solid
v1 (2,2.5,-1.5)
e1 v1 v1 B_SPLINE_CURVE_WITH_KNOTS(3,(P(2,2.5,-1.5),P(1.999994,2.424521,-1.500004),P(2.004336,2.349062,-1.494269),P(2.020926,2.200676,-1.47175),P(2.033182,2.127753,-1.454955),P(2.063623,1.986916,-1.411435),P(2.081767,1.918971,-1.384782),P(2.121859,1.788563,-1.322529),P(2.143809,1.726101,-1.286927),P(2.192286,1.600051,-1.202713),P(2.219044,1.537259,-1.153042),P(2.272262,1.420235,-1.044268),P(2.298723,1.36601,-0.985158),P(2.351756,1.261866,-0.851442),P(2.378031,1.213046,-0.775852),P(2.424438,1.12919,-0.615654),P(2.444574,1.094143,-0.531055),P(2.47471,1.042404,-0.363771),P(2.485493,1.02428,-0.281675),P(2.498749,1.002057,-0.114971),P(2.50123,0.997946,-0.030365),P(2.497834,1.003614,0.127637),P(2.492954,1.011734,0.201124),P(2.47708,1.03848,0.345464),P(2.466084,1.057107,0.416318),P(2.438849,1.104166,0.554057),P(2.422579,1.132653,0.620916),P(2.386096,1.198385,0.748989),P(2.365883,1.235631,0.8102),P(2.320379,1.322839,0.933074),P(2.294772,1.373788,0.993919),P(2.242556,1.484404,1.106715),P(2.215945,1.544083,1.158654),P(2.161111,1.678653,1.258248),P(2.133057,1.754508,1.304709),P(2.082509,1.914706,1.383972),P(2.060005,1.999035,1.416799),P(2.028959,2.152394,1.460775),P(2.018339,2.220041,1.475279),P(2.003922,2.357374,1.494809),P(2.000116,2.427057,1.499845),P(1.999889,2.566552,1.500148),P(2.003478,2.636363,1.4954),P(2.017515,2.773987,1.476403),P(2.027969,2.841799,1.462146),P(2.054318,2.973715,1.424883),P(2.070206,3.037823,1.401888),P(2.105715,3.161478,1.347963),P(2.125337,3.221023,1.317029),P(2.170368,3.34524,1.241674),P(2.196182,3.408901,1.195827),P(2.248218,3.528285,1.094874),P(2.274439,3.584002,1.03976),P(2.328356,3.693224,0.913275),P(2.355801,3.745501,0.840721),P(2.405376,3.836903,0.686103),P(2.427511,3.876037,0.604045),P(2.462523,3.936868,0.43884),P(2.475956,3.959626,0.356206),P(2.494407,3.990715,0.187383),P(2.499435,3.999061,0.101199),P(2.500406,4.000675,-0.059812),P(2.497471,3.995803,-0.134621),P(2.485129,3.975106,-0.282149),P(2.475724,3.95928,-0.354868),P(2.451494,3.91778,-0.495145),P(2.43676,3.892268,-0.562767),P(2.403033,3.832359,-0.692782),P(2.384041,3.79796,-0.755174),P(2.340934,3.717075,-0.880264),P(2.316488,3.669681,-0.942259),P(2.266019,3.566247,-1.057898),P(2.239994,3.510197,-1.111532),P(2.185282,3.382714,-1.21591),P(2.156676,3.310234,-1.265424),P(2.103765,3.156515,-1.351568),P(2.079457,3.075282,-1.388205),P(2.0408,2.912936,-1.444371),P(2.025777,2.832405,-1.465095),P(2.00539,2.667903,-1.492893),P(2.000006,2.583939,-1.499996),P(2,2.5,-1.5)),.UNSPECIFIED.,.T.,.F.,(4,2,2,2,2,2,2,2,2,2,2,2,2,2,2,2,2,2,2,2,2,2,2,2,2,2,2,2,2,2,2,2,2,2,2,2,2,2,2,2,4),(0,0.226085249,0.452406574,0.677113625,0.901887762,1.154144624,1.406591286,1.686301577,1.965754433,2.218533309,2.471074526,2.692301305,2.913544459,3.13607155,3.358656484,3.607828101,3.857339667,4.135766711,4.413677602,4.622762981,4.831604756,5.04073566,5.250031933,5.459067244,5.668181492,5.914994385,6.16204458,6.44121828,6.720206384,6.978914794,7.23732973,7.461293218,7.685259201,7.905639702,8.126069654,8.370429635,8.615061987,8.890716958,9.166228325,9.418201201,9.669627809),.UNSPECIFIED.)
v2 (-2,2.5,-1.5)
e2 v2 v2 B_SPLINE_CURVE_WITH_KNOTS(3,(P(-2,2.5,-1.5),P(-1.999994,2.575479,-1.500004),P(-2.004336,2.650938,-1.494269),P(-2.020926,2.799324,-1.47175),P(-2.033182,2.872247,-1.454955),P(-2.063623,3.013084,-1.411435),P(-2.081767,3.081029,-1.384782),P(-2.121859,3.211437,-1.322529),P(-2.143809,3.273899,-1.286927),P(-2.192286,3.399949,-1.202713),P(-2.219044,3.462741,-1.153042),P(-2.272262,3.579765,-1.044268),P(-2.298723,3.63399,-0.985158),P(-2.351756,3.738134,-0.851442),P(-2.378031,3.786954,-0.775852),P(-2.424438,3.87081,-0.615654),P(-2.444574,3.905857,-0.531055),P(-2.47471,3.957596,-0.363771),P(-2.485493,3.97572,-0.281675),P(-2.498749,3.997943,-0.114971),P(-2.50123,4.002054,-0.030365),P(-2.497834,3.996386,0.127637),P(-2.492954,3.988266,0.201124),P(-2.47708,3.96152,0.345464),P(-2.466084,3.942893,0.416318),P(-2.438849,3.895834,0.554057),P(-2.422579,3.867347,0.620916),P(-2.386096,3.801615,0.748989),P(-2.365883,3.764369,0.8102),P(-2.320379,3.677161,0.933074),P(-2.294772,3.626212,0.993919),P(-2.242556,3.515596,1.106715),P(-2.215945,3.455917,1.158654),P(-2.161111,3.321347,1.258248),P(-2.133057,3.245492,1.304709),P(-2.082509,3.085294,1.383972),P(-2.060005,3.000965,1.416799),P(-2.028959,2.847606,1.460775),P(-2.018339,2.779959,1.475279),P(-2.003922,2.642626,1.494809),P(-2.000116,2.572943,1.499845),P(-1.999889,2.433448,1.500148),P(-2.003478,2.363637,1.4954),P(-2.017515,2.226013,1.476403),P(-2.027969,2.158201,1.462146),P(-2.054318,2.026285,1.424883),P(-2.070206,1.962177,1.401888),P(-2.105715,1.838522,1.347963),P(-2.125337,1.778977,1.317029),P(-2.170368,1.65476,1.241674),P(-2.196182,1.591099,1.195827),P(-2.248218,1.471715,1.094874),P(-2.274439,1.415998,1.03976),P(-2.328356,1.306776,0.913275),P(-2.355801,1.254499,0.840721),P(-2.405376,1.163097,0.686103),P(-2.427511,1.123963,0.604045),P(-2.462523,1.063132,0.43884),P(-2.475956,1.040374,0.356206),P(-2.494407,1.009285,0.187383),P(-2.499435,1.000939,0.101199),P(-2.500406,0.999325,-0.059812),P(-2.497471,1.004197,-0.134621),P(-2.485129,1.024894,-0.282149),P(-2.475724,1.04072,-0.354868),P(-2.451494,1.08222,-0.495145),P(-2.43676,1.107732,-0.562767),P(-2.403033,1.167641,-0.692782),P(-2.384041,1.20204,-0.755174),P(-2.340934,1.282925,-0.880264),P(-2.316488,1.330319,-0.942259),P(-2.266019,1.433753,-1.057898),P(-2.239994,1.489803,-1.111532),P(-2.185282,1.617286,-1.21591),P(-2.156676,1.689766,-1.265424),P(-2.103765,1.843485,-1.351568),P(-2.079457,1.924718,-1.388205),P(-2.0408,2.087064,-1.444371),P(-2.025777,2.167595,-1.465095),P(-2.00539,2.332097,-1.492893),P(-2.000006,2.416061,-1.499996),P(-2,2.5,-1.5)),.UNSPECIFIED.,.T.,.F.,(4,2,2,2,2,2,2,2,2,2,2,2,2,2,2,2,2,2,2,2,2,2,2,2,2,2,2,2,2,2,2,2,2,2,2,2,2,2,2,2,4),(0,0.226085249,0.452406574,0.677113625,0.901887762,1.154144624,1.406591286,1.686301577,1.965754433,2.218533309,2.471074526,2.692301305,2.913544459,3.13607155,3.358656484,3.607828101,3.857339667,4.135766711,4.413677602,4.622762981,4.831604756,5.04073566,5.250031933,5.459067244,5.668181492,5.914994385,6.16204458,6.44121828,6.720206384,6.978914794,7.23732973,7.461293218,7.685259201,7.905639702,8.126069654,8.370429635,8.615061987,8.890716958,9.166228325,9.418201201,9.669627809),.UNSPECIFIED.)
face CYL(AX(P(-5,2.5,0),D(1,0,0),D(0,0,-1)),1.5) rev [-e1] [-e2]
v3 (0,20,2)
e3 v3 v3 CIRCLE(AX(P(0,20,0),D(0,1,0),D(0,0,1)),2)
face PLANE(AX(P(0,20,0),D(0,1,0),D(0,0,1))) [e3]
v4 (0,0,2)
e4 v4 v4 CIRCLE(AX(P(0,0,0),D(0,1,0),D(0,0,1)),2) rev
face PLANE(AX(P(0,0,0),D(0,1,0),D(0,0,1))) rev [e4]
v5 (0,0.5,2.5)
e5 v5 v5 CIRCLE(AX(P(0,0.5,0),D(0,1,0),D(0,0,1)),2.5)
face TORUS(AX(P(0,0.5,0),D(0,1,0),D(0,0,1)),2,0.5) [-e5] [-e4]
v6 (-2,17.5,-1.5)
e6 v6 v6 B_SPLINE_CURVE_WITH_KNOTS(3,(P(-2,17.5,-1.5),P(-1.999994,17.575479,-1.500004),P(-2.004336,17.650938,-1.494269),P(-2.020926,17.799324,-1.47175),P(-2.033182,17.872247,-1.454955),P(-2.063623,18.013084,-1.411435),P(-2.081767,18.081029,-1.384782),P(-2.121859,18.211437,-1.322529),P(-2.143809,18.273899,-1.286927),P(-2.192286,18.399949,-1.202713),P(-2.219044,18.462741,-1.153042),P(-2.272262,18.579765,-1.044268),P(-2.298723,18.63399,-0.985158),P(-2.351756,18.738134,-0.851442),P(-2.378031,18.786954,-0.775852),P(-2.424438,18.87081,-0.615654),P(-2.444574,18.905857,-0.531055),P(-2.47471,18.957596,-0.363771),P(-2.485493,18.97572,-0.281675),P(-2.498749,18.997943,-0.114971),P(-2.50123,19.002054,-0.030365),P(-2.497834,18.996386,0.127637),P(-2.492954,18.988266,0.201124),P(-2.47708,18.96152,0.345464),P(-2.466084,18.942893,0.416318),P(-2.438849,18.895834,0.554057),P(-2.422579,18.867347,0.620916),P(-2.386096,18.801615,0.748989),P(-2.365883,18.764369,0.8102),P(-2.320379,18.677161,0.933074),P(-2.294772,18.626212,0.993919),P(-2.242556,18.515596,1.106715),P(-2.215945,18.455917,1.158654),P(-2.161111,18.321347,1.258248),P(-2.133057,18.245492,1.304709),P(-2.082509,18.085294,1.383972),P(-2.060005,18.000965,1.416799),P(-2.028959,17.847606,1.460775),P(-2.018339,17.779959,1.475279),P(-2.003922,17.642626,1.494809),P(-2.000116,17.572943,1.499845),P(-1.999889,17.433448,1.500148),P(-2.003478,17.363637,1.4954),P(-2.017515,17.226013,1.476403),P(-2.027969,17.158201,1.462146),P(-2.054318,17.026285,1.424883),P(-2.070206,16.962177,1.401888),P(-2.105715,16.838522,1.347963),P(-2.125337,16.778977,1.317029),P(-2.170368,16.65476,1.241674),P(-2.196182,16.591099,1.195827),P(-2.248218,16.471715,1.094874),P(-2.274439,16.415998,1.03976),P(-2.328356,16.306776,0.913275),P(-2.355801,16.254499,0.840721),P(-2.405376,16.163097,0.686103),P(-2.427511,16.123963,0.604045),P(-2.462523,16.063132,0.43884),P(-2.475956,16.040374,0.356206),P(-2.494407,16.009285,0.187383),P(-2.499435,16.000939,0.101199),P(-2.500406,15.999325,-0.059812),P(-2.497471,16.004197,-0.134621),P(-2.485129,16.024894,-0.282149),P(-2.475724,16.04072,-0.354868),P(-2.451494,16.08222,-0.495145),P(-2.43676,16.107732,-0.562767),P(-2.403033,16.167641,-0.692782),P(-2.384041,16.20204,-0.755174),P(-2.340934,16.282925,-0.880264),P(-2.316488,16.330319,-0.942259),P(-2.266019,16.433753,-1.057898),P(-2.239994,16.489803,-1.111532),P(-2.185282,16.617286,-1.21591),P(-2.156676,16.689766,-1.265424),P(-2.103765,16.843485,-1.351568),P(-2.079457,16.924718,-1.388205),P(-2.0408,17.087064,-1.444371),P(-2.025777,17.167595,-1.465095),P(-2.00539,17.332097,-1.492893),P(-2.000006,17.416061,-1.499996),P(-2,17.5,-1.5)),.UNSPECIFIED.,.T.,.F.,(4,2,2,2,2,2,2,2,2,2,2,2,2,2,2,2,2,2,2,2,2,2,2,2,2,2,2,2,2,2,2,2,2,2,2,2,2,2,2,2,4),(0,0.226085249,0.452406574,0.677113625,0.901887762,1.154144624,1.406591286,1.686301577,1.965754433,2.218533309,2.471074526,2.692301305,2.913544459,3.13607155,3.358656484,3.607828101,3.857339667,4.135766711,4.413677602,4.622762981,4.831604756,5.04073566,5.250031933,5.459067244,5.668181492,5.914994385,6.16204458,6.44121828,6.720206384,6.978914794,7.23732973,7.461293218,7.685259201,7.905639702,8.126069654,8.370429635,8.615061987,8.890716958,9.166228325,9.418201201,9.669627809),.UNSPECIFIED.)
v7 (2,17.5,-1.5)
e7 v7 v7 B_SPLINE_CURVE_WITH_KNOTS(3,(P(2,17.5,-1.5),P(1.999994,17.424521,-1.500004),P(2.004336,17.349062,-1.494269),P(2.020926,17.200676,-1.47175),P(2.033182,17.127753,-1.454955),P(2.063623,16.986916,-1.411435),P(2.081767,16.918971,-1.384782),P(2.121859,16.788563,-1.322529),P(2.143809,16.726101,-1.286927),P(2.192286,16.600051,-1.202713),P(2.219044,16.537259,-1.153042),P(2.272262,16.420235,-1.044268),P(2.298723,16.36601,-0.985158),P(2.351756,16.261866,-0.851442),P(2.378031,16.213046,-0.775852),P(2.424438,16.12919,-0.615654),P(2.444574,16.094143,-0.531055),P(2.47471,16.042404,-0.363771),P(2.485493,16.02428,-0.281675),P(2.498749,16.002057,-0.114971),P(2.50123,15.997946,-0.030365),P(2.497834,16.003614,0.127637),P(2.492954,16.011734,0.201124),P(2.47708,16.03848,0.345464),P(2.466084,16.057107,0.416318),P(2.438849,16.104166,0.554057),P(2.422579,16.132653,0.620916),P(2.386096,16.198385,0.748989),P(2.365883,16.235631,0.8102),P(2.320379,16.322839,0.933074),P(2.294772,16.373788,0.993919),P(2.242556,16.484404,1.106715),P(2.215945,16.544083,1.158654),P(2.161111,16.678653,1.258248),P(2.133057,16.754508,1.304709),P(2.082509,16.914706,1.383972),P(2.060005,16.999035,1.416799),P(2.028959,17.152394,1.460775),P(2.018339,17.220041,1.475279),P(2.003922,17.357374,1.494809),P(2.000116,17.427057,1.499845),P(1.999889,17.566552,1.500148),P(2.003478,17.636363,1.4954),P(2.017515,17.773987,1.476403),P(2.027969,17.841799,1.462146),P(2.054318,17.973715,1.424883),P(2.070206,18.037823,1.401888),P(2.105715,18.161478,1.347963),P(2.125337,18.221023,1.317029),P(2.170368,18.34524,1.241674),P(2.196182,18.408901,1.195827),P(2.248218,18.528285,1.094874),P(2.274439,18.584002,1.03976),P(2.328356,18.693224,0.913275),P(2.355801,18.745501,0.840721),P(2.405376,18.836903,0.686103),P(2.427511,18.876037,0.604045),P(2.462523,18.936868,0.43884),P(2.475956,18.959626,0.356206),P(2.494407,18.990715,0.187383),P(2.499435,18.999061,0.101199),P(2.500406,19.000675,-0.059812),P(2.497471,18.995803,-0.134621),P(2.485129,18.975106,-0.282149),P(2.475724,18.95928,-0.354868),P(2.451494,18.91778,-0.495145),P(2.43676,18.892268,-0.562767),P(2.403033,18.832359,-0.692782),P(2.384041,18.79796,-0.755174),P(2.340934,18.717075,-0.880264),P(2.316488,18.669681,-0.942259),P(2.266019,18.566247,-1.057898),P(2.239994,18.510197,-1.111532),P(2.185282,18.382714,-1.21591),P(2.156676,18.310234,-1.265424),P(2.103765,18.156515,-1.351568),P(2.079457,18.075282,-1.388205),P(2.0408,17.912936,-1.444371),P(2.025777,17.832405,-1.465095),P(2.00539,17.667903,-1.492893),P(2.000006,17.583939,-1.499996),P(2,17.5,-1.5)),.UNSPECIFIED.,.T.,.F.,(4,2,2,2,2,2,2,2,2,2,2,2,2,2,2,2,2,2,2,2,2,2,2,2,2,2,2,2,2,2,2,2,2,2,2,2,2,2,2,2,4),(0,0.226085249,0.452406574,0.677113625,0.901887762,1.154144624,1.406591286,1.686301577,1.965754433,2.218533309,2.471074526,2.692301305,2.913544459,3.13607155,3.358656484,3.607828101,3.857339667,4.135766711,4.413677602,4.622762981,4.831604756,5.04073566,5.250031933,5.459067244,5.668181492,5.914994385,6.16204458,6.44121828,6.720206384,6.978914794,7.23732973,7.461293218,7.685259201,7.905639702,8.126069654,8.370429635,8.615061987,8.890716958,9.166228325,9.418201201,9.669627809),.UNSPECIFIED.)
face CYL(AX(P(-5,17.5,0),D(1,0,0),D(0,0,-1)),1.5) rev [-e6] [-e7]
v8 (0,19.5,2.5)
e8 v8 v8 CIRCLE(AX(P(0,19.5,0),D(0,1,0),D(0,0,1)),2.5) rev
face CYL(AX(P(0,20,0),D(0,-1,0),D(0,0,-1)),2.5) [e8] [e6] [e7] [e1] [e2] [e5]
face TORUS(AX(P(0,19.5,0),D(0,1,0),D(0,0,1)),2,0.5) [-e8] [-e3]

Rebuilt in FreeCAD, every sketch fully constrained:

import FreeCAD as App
import Part
import Sketcher

V = App.Vector
Q = App.Units.Quantity


def edges_at(feature, points):
    """Names of the edges that pass closest to the given points."""
    edges = feature.Shape.Edges
    near = lambda p: min(range(len(edges)), key=lambda i: edges[i].distToShape(Part.Vertex(*p))[0])
    return sorted({f"Edge{near(p) + 1}" for p in points})

doc = App.newDocument("Part")
body = doc.addObject("PartDesign::Body", "Body")

sketch1 = doc.addObject("Sketcher::SketchObject", "Sketch")
body.addObject(sketch1)
sketch1.AttachmentSupport = (doc.XZ_Plane, [""])
sketch1.MapMode = "FlatFace"
sketch1.addGeometry(Part.Circle(V(0, 0, 0), V(0, 0, 1), 2.5), False)
sketch1.addConstraint(Sketcher.Constraint("Coincident", 0, 3, -1, 1))
sketch1.addConstraint(Sketcher.Constraint("Diameter", 0, Q("5 mm")))
pad1 = doc.addObject("PartDesign::Pad", "Pad")
body.addObject(pad1)
pad1.Profile = sketch1
pad1.Length = 20
pad1.Reversed = True

sketch2 = doc.addObject("Sketcher::SketchObject", "Sketch001")
body.addObject(sketch2)
sketch2.AttachmentSupport = (doc.YZ_Plane, [""])
sketch2.MapMode = "FlatFace"
sketch2.addGeometry(Part.Circle(V(17.5, 0, 0), V(0, 0, 1), 1.5), False)
sketch2.addGeometry(Part.Circle(V(2.5, 0, 0), V(0, 0, 1), 1.5), False)
sketch2.addConstraint(Sketcher.Constraint("Equal", 0, 1))
sketch2.addConstraint(Sketcher.Constraint("PointOnObject", 0, 3, -1))
sketch2.addConstraint(Sketcher.Constraint("PointOnObject", 1, 3, -1))
sketch2.addConstraint(Sketcher.Constraint("Diameter", 0, Q("3 mm")))
sketch2.addConstraint(Sketcher.Constraint("DistanceX", 1, 3, 0, 3, Q("15 mm")))
sketch2.addConstraint(Sketcher.Constraint("DistanceX", -1, 1, 0, 3, Q("17.5 mm")))
pocket1 = doc.addObject("PartDesign::Pocket", "Pocket")
body.addObject(pocket1)
pocket1.Profile = sketch2
pocket1.Length = 10
pocket1.Midplane = True
doc.recompute()

fillet = doc.addObject("PartDesign::Fillet", "Fillet")
body.addObject(fillet)
fillet.Base = (pocket1, edges_at(pocket1, [(-2.5, 0, 0), (-2.5, 20, 0)]))
fillet.Radius = 0.5

doc.recompute()
